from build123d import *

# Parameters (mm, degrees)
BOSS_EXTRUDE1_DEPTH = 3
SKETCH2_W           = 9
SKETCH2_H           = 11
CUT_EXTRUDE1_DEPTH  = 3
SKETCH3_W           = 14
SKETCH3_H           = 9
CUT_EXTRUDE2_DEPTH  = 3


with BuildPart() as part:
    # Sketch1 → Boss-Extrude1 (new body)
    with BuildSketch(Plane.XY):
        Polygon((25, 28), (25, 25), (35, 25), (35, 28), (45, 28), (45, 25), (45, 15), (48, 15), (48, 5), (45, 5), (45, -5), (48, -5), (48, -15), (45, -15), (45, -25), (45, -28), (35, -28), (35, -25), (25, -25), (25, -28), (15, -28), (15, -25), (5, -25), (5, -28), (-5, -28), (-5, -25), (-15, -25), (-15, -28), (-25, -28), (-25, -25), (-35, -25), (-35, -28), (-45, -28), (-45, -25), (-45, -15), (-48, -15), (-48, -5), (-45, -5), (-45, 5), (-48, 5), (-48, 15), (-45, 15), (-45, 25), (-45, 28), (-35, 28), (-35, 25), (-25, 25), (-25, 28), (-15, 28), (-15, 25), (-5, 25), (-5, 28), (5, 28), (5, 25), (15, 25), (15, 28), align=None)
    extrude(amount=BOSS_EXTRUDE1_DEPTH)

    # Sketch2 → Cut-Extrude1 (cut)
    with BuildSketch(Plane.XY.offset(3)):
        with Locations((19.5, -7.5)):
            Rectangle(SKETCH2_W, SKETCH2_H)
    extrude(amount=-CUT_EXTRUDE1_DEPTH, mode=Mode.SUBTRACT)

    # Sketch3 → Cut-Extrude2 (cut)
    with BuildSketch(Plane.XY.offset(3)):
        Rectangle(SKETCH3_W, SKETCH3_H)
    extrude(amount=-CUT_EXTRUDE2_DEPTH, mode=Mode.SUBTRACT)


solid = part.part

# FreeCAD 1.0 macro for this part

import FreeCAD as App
import Part
import Sketcher
from FreeCAD import Vector

doc = App.newDocument("Part")
body = doc.addObject("PartDesign::Body", "Body")

# Sketch on XY plane
sketch1 = body.newObject("Sketcher::SketchObject", "Sketch")
sketch1.AttachmentSupport = (doc.getObject("XY_Plane"), [""])
sketch1.MapMode = "FlatFace"
sketch1.addGeometry([
    Part.LineSegment(Vector(25, 25, 0), Vector(25, 28, 0)),  # 0
    Part.LineSegment(Vector(25, 28, 0), Vector(15, 28, 0)),  # 1
    Part.LineSegment(Vector(15, 28, 0), Vector(15, 25, 0)),  # 2
    Part.LineSegment(Vector(15, 25, 0), Vector(5, 25, 0)),  # 3
    Part.LineSegment(Vector(5, 25, 0), Vector(5, 28, 0)),  # 4
    Part.LineSegment(Vector(5, 28, 0), Vector(-5, 28, 0)),  # 5
    Part.LineSegment(Vector(-5, 28, 0), Vector(-5, 25, 0)),  # 6
    Part.LineSegment(Vector(-5, 25, 0), Vector(-15, 25, 0)),  # 7
    Part.LineSegment(Vector(-15, 25, 0), Vector(-15, 28, 0)),  # 8
    Part.LineSegment(Vector(-15, 28, 0), Vector(-25, 28, 0)),  # 9
    Part.LineSegment(Vector(-25, 28, 0), Vector(-25, 25, 0)),  # 10
    Part.LineSegment(Vector(-25, 25, 0), Vector(-35, 25, 0)),  # 11
    Part.LineSegment(Vector(-35, 25, 0), Vector(-35, 28, 0)),  # 12
    Part.LineSegment(Vector(-35, 28, 0), Vector(-45, 28, 0)),  # 13
    Part.LineSegment(Vector(-45, 28, 0), Vector(-45, 15, 0)),  # 14
    Part.LineSegment(Vector(-45, 15, 0), Vector(-48, 15, 0)),  # 15
    Part.LineSegment(Vector(-48, 15, 0), Vector(-48, 5, 0)),  # 16
    Part.LineSegment(Vector(-48, 5, 0), Vector(-45, 5, 0)),  # 17
    Part.LineSegment(Vector(-45, 5, 0), Vector(-45, -5, 0)),  # 18
    Part.LineSegment(Vector(-45, -5, 0), Vector(-48, -5, 0)),  # 19
    Part.LineSegment(Vector(-48, -5, 0), Vector(-48, -15, 0)),  # 20
    Part.LineSegment(Vector(-48, -15, 0), Vector(-45, -15, 0)),  # 21
    Part.LineSegment(Vector(-45, -15, 0), Vector(-45, -28, 0)),  # 22
    Part.LineSegment(Vector(-45, -28, 0), Vector(-35, -28, 0)),  # 23
    Part.LineSegment(Vector(-35, -28, 0), Vector(-35, -25, 0)),  # 24
    Part.LineSegment(Vector(-35, -25, 0), Vector(-25, -25, 0)),  # 25
    Part.LineSegment(Vector(-25, -25, 0), Vector(-25, -28, 0)),  # 26
    Part.LineSegment(Vector(-25, -28, 0), Vector(-15, -28, 0)),  # 27
    Part.LineSegment(Vector(-15, -28, 0), Vector(-15, -25, 0)),  # 28
    Part.LineSegment(Vector(-15, -25, 0), Vector(-5, -25, 0)),  # 29
    Part.LineSegment(Vector(-5, -25, 0), Vector(-5, -28, 0)),  # 30
    Part.LineSegment(Vector(-5, -28, 0), Vector(5, -28, 0)),  # 31
    Part.LineSegment(Vector(5, -28, 0), Vector(5, -25, 0)),  # 32
    Part.LineSegment(Vector(5, -25, 0), Vector(15, -25, 0)),  # 33
    Part.LineSegment(Vector(15, -25, 0), Vector(15, -28, 0)),  # 34
    Part.LineSegment(Vector(15, -28, 0), Vector(25, -28, 0)),  # 35
    Part.LineSegment(Vector(25, -28, 0), Vector(25, -25, 0)),  # 36
    Part.LineSegment(Vector(25, -25, 0), Vector(35, -25, 0)),  # 37
    Part.LineSegment(Vector(35, -25, 0), Vector(35, -28, 0)),  # 38
    Part.LineSegment(Vector(35, -28, 0), Vector(45, -28, 0)),  # 39
    Part.LineSegment(Vector(45, -28, 0), Vector(45, -15, 0)),  # 40
    Part.LineSegment(Vector(45, -15, 0), Vector(48, -15, 0)),  # 41
    Part.LineSegment(Vector(48, -15, 0), Vector(48, -5, 0)),  # 42
    Part.LineSegment(Vector(48, -5, 0), Vector(45, -5, 0)),  # 43
    Part.LineSegment(Vector(45, -5, 0), Vector(45, 5, 0)),  # 44
    Part.LineSegment(Vector(45, 5, 0), Vector(48, 5, 0)),  # 45
    Part.LineSegment(Vector(48, 5, 0), Vector(48, 15, 0)),  # 46
    Part.LineSegment(Vector(48, 15, 0), Vector(45, 15, 0)),  # 47
    Part.LineSegment(Vector(45, 15, 0), Vector(45, 28, 0)),  # 48
    Part.LineSegment(Vector(45, 28, 0), Vector(35, 28, 0)),  # 49
    Part.LineSegment(Vector(35, 28, 0), Vector(35, 25, 0)),  # 50
    Part.LineSegment(Vector(35, 25, 0), Vector(25, 25, 0)),  # 51
], False)
sketch1.addConstraint([
    Sketcher.Constraint("Coincident", 0, 2, 1, 1),
    Sketcher.Constraint("Coincident", 1, 2, 2, 1),
    Sketcher.Constraint("Coincident", 2, 2, 3, 1),
    Sketcher.Constraint("Coincident", 3, 2, 4, 1),
    Sketcher.Constraint("Coincident", 4, 2, 5, 1),
    Sketcher.Constraint("Coincident", 5, 2, 6, 1),
    Sketcher.Constraint("Coincident", 6, 2, 7, 1),
    Sketcher.Constraint("Coincident", 7, 2, 8, 1),
    Sketcher.Constraint("Coincident", 8, 2, 9, 1),
    Sketcher.Constraint("Coincident", 9, 2, 10, 1),
    Sketcher.Constraint("Coincident", 10, 2, 11, 1),
    Sketcher.Constraint("Coincident", 11, 2, 12, 1),
    Sketcher.Constraint("Coincident", 12, 2, 13, 1),
    Sketcher.Constraint("Coincident", 13, 2, 14, 1),
    Sketcher.Constraint("Coincident", 14, 2, 15, 1),
    Sketcher.Constraint("Coincident", 15, 2, 16, 1),
    Sketcher.Constraint("Coincident", 16, 2, 17, 1),
    Sketcher.Constraint("Coincident", 17, 2, 18, 1),
    Sketcher.Constraint("Coincident", 18, 2, 19, 1),
    Sketcher.Constraint("Coincident", 19, 2, 20, 1),
    Sketcher.Constraint("Coincident", 20, 2, 21, 1),
    Sketcher.Constraint("Coincident", 21, 2, 22, 1),
    Sketcher.Constraint("Coincident", 22, 2, 23, 1),
    Sketcher.Constraint("Coincident", 23, 2, 24, 1),
    Sketcher.Constraint("Coincident", 24, 2, 25, 1),
    Sketcher.Constraint("Coincident", 25, 2, 26, 1),
    Sketcher.Constraint("Coincident", 26, 2, 27, 1),
    Sketcher.Constraint("Coincident", 27, 2, 28, 1),
    Sketcher.Constraint("Coincident", 28, 2, 29, 1),
    Sketcher.Constraint("Coincident", 29, 2, 30, 1),
    Sketcher.Constraint("Coincident", 30, 2, 31, 1),
    Sketcher.Constraint("Coincident", 31, 2, 32, 1),
    Sketcher.Constraint("Coincident", 32, 2, 33, 1),
    Sketcher.Constraint("Coincident", 33, 2, 34, 1),
    Sketcher.Constraint("Coincident", 34, 2, 35, 1),
    Sketcher.Constraint("Coincident", 35, 2, 36, 1),
    Sketcher.Constraint("Coincident", 36, 2, 37, 1),
    Sketcher.Constraint("Coincident", 37, 2, 38, 1),
    Sketcher.Constraint("Coincident", 38, 2, 39, 1),
    Sketcher.Constraint("Coincident", 39, 2, 40, 1),
    Sketcher.Constraint("Coincident", 40, 2, 41, 1),
    Sketcher.Constraint("Coincident", 41, 2, 42, 1),
    Sketcher.Constraint("Coincident", 42, 2, 43, 1),
    Sketcher.Constraint("Coincident", 43, 2, 44, 1),
    Sketcher.Constraint("Coincident", 44, 2, 45, 1),
    Sketcher.Constraint("Coincident", 45, 2, 46, 1),
    Sketcher.Constraint("Coincident", 46, 2, 47, 1),
    Sketcher.Constraint("Coincident", 47, 2, 48, 1),
    Sketcher.Constraint("Coincident", 48, 2, 49, 1),
    Sketcher.Constraint("Coincident", 49, 2, 50, 1),
    Sketcher.Constraint("Coincident", 50, 2, 51, 1),
    Sketcher.Constraint("Coincident", 51, 2, 0, 1),
    Sketcher.Constraint("Vertical", 0),
    Sketcher.Constraint("Horizontal", 1),
    Sketcher.Constraint("Vertical", 2),
    Sketcher.Constraint("Horizontal", 3),
    Sketcher.Constraint("Vertical", 4),
    Sketcher.Constraint("Horizontal", 5),
    Sketcher.Constraint("Vertical", 6),
    Sketcher.Constraint("Horizontal", 7),
    Sketcher.Constraint("Vertical", 8),
    Sketcher.Constraint("Horizontal", 9),
    Sketcher.Constraint("Vertical", 10),
    Sketcher.Constraint("Horizontal", 11),
    Sketcher.Constraint("Vertical", 12),
    Sketcher.Constraint("Horizontal", 13),
    Sketcher.Constraint("Vertical", 14),
    Sketcher.Constraint("Horizontal", 15),
    Sketcher.Constraint("Vertical", 16),
    Sketcher.Constraint("Horizontal", 17),
    Sketcher.Constraint("Vertical", 18),
    Sketcher.Constraint("Horizontal", 19),
    Sketcher.Constraint("Vertical", 20),
    Sketcher.Constraint("Horizontal", 21),
    Sketcher.Constraint("Vertical", 22),
    Sketcher.Constraint("Horizontal", 23),
    Sketcher.Constraint("Vertical", 24),
    Sketcher.Constraint("Horizontal", 25),
    Sketcher.Constraint("Vertical", 26),
    Sketcher.Constraint("Horizontal", 27),
    Sketcher.Constraint("Vertical", 28),
    Sketcher.Constraint("Horizontal", 29),
    Sketcher.Constraint("Vertical", 30),
    Sketcher.Constraint("Horizontal", 31),
    Sketcher.Constraint("Vertical", 32),
    Sketcher.Constraint("Horizontal", 33),
    Sketcher.Constraint("Vertical", 34),
    Sketcher.Constraint("Horizontal", 35),
    Sketcher.Constraint("Vertical", 36),
    Sketcher.Constraint("Horizontal", 37),
    Sketcher.Constraint("Vertical", 38),
    Sketcher.Constraint("Horizontal", 39),
    Sketcher.Constraint("Vertical", 40),
    Sketcher.Constraint("Horizontal", 41),
    Sketcher.Constraint("Vertical", 42),
    Sketcher.Constraint("Horizontal", 43),
    Sketcher.Constraint("Vertical", 44),
    Sketcher.Constraint("Horizontal", 45),
    Sketcher.Constraint("Vertical", 46),
    Sketcher.Constraint("Horizontal", 47),
    Sketcher.Constraint("Vertical", 48),
    Sketcher.Constraint("Horizontal", 49),
    Sketcher.Constraint("Vertical", 50),
    Sketcher.Constraint("Horizontal", 51),
    Sketcher.Constraint("Symmetric", 0, 2, 26, 2, -1, 1),
    Sketcher.Constraint("Symmetric", 2, 2, 28, 2, -1, 1),
    Sketcher.Constraint("Symmetric", 4, 2, 30, 2, -1, 1),
    Sketcher.Constraint("Symmetric", 6, 2, 32, 2, -1, 1),
    Sketcher.Constraint("Symmetric", 8, 2, 34, 2, -1, 1),
    Sketcher.Constraint("Symmetric", 10, 2, 36, 2, -1, 1),
    Sketcher.Constraint("Symmetric", 12, 2, 38, 2, -1, 1),
    Sketcher.Constraint("Symmetric", 14, 2, 40, 2, -1, 1),
    Sketcher.Constraint("Symmetric", 16, 2, 42, 2, -1, 1),
    Sketcher.Constraint("Symmetric", 18, 2, 44, 2, -1, 1),
    Sketcher.Constraint("Symmetric", 20, 2, 46, 2, -1, 1),
    Sketcher.Constraint("Symmetric", 22, 2, 48, 2, -1, 1),
    Sketcher.Constraint("Symmetric", 24, 2, 50, 2, -1, 1),
    Sketcher.Constraint("Symmetric", 3, 2, 6, 2, -2),
    Sketcher.Constraint("Symmetric", 1, 2, 8, 2, -2),
    Sketcher.Constraint("Symmetric", 25, 2, 36, 2, -2),
    Sketcher.Constraint("Symmetric", 23, 2, 38, 2, -2),
    Sketcher.Constraint("Symmetric", 21, 2, 40, 2, -2),
    Sketcher.Constraint("Symmetric", 19, 2, 42, 2, -2),
    Sketcher.Constraint("Horizontal", 1, 2, 4, 2),
    Sketcher.Constraint("Horizontal", 7, 2, 10, 2),
    Sketcher.Constraint("Horizontal", 9, 2, 12, 2),
    Sketcher.Constraint("Vertical", 14, 2, 17, 2),
    Sketcher.Constraint("Equal", 1, 3),
    Sketcher.Constraint("Equal", 3, 5),
    Sketcher.Constraint("Equal", 9, 11),
    Sketcher.Constraint("Equal", 11, 13),
    Sketcher.Constraint("Equal", 47, 0),
    Sketcher.Constraint("Equal", 51, 16),
    Sketcher.Constraint("Equal", 16, 18),
    Sketcher.Constraint("DistanceX", 1, 2, 1, 1, 10.0),
    Sketcher.Constraint("DistanceX", 15, 2, 15, 1, 3.0),
    Sketcher.Constraint("DistanceY", 14, 2, 14, 1, 13.0),
])
pad1 = body.newObject("PartDesign::Pad", "Pad")
pad1.Profile = sketch1
pad1.Length = 3

# Sketch on XY plane
sketch2 = body.newObject("Sketcher::SketchObject", "Sketch001")
sketch2.AttachmentSupport = (doc.getObject("XY_Plane"), [""])
sketch2.MapMode = "FlatFace"
sketch2.AttachmentOffset = App.Placement(Vector(0, 0, 3), App.Rotation())
sketch2.addGeometry([
    Part.LineSegment(Vector(15, -2, 0), Vector(15, -13, 0)),
    Part.LineSegment(Vector(15, -13, 0), Vector(24, -13, 0)),
    Part.LineSegment(Vector(24, -13, 0), Vector(24, -2, 0)),
    Part.LineSegment(Vector(24, -2, 0), Vector(15, -2, 0)),
], False)
sketch2.addConstraint([
    Sketcher.Constraint("Coincident", 0, 2, 1, 1),
    Sketcher.Constraint("Coincident", 1, 2, 2, 1),
    Sketcher.Constraint("Coincident", 2, 2, 3, 1),
    Sketcher.Constraint("Coincident", 3, 2, 0, 1),
    Sketcher.Constraint("Vertical", 0),
    Sketcher.Constraint("Horizontal", 1),
    Sketcher.Constraint("Vertical", 2),
    Sketcher.Constraint("Horizontal", 3),
    Sketcher.Constraint("DistanceX", 1, 1, 1, 2, 9.0),
    Sketcher.Constraint("DistanceY", 0, 2, 0, 1, 11.0),
    Sketcher.Constraint("DistanceX", -1, 1, 0, 2, 15.0),
    Sketcher.Constraint("DistanceY", 0, 2, -1, 1, 13.0),
])
pocket1 = body.newObject("PartDesign::Pocket", "Pocket")
pocket1.Profile = sketch2
pocket1.Length = 3

# Sketch on XY plane
sketch3 = body.newObject("Sketcher::SketchObject", "Sketch002")
sketch3.AttachmentSupport = (doc.getObject("XY_Plane"), [""])
sketch3.MapMode = "FlatFace"
sketch3.AttachmentOffset = App.Placement(Vector(0, 0, 3), App.Rotation())
sketch3.addGeometry([
    Part.LineSegment(Vector(-7, 4, 0), Vector(-7, -4, 0)),
    Part.LineSegment(Vector(-7, -4, 0), Vector(7, -4, 0)),
    Part.LineSegment(Vector(7, -4, 0), Vector(7, 4, 0)),
    Part.LineSegment(Vector(7, 4, 0), Vector(-7, 4, 0)),
], False)
sketch3.addConstraint([
    Sketcher.Constraint("Coincident", 0, 2, 1, 1),
    Sketcher.Constraint("Coincident", 1, 2, 2, 1),
    Sketcher.Constraint("Coincident", 2, 2, 3, 1),
    Sketcher.Constraint("Coincident", 3, 2, 0, 1),
    Sketcher.Constraint("Vertical", 0),
    Sketcher.Constraint("Horizontal", 1),
    Sketcher.Constraint("Vertical", 2),
    Sketcher.Constraint("Horizontal", 3),
    Sketcher.Constraint("Symmetric", 0, 2, 2, 2, -1, 1),
    Sketcher.Constraint("DistanceX", 1, 1, 1, 2, 14.0),
    Sketcher.Constraint("DistanceY", 0, 2, 0, 1, 9.0),
])
pocket2 = body.newObject("PartDesign::Pocket", "Pocket001")
pocket2.Profile = sketch3
pocket2.Length = 3

doc.recompute()
